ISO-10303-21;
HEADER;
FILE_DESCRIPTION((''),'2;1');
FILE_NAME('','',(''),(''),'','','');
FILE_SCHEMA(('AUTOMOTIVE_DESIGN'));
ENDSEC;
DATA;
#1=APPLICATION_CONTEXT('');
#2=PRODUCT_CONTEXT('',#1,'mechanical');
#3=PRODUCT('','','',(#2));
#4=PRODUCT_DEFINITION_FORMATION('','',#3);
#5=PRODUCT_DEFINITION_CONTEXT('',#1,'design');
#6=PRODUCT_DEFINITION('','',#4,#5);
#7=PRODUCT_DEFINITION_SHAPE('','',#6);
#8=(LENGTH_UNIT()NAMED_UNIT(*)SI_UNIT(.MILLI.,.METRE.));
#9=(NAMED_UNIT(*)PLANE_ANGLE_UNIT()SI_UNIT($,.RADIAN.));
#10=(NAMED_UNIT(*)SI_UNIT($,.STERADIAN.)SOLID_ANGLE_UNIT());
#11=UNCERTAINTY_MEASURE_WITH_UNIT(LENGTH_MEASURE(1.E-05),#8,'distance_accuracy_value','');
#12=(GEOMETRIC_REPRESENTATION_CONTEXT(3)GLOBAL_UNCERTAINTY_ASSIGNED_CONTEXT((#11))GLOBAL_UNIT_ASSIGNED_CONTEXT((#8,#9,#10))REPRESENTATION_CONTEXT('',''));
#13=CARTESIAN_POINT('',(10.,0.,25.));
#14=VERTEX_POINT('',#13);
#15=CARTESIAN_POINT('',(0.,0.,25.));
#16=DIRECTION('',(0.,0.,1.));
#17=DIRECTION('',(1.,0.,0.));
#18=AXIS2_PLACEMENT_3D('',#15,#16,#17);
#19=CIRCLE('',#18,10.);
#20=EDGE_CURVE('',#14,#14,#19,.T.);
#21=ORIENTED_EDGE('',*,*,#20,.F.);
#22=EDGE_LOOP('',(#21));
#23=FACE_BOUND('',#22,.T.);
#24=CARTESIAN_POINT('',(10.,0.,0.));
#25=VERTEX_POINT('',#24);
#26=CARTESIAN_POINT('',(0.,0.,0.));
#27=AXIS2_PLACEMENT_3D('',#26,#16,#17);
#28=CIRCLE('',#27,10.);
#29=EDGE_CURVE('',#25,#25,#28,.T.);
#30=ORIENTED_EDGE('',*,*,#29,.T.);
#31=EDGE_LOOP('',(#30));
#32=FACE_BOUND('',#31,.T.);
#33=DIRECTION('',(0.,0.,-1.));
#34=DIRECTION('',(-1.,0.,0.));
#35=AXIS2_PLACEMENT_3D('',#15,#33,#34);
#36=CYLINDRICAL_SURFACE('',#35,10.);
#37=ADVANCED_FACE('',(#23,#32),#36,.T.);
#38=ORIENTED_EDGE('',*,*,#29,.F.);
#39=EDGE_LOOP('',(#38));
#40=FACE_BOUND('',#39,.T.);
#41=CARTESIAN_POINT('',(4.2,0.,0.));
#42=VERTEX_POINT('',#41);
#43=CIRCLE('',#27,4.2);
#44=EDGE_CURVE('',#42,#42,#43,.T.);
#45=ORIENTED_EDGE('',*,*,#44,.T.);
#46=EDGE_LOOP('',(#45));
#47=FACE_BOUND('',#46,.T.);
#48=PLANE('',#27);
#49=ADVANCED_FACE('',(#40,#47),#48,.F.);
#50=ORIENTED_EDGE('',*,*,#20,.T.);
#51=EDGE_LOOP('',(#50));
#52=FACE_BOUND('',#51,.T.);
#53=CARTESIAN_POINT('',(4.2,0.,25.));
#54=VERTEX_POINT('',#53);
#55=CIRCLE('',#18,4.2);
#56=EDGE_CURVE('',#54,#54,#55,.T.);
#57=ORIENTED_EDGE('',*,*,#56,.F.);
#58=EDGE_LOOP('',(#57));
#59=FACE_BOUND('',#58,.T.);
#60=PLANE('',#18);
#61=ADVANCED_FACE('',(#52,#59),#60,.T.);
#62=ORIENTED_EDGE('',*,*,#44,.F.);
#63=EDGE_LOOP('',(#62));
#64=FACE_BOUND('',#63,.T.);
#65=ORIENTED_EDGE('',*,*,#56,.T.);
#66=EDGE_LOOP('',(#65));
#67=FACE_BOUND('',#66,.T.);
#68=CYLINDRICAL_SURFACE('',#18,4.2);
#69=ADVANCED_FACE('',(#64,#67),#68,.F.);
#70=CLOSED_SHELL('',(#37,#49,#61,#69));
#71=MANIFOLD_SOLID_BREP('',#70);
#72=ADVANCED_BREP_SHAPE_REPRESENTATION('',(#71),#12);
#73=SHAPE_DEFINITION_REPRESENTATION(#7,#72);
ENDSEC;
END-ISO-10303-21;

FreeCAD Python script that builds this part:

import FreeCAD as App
import Part
import Sketcher

V = App.Vector

doc = App.newDocument("Part")
body = doc.addObject("PartDesign::Body", "Body")

# Sketch on XY plane
sketch1 = body.newObject("Sketcher::SketchObject", "Sketch")
sketch1.AttachmentSupport = (doc.getObject("XY_Plane"), [""])
sketch1.MapMode = "FlatFace"
sketch1.addGeometry(Part.Circle(V(0, 0, 0), V(0, 0, 1), 10), False)
sketch1.addConstraint([
    Sketcher.Constraint("Coincident", 0, 3, -1, 1),
    Sketcher.Constraint("Diameter", 0, 20.0),
])
pad1 = body.newObject("PartDesign::Pad", "Pad")
pad1.Profile = sketch1
pad1.Length = 25

# Sketch on XY plane
sketch2 = body.newObject("Sketcher::SketchObject", "Sketch001")
sketch2.AttachmentSupport = (doc.getObject("XY_Plane"), [""])
sketch2.MapMode = "FlatFace"
sketch2.AttachmentOffset = App.Placement(V(0, 0, 25), App.Rotation())
sketch2.addGeometry(Part.Circle(V(0, 0, 0), V(0, 0, 1), 4.2), False)
sketch2.addConstraint([
    Sketcher.Constraint("Coincident", 0, 3, -1, 1),
    Sketcher.Constraint("Diameter", 0, 8.4),
])
doc.recompute()
hole = body.newObject("PartDesign::Hole", "Hole")
hole.Profile = sketch2
hole.ThreadType = "None"
hole.Diameter = 8.4
hole.DepthType = "ThroughAll"

doc.recompute()
